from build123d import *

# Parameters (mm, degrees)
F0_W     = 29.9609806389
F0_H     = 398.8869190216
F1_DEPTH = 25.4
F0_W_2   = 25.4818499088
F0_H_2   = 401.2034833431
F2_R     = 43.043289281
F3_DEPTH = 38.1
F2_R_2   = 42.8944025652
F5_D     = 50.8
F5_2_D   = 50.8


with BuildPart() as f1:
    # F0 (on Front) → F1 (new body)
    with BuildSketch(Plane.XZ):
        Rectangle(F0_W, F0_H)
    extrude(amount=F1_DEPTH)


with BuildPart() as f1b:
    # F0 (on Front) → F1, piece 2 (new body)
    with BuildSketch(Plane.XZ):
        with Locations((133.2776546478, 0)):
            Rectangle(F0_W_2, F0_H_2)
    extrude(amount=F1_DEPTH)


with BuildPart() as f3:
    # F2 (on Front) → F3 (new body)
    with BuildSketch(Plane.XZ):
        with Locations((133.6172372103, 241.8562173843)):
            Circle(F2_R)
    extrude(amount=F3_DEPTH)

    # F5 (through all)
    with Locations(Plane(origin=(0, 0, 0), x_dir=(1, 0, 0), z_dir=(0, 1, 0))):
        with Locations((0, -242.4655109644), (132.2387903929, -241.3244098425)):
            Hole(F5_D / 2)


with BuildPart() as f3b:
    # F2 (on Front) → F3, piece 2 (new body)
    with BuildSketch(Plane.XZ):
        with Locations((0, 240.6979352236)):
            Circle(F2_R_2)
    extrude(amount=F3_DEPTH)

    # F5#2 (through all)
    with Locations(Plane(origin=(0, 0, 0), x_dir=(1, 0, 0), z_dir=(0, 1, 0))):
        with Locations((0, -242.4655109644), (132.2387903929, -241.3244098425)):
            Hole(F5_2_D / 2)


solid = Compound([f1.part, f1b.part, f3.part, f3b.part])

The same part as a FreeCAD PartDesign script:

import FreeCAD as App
import Part
import Sketcher
from FreeCAD import Vector
Q = App.Units.Quantity

doc = App.newDocument("Part")
body = doc.addObject("PartDesign::Body", "Body")

# Sketch on XZ plane
sketch1 = body.newObject("Sketcher::SketchObject", "Sketch")
sketch1.AttachmentSupport = (doc.getObject("XZ_Plane"), [""])
sketch1.MapMode = "FlatFace"
sketch1.addGeometry(Part.LineSegment(Vector(-15, 199, 0), Vector(-15, -199, 0)), False)
sketch1.addGeometry(Part.LineSegment(Vector(-15, -199, 0), Vector(15, -199, 0)), False)
sketch1.addGeometry(Part.LineSegment(Vector(15, -199, 0), Vector(15, 199, 0)), False)
sketch1.addGeometry(Part.LineSegment(Vector(15, 199, 0), Vector(-15, 199, 0)), False)
sketch1.addConstraint(Sketcher.Constraint("Coincident", 0, 2, 1, 1))
sketch1.addConstraint(Sketcher.Constraint("Coincident", 1, 2, 2, 1))
sketch1.addConstraint(Sketcher.Constraint("Coincident", 2, 2, 3, 1))
sketch1.addConstraint(Sketcher.Constraint("Coincident", 3, 2, 0, 1))
sketch1.addConstraint(Sketcher.Constraint("Vertical", 0))
sketch1.addConstraint(Sketcher.Constraint("Horizontal", 1))
sketch1.addConstraint(Sketcher.Constraint("Vertical", 2))
sketch1.addConstraint(Sketcher.Constraint("Horizontal", 3))
sketch1.addConstraint(Sketcher.Constraint("Symmetric", 0, 2, 2, 2, -1, 1))
sketch1.addConstraint(Sketcher.Constraint("DistanceX", 1, 1, 1, 2, Q("29.960981 mm")))
sketch1.addConstraint(Sketcher.Constraint("DistanceY", 0, 2, 0, 1, Q("398.886919 mm")))
pad1 = body.newObject("PartDesign::Pad", "Pad")
pad1.Profile = sketch1
pad1.Length = Q("1 in")
body2 = doc.addObject("PartDesign::Body", "Body001")

# Sketch on XZ plane
sketch2 = body2.newObject("Sketcher::SketchObject", "Sketch001")
sketch2.AttachmentSupport = (doc.getObject("XZ_Plane001"), [""])
sketch2.MapMode = "FlatFace"
sketch2.addGeometry(Part.LineSegment(Vector(121, 201, 0), Vector(121, -201, 0)), False)
sketch2.addGeometry(Part.LineSegment(Vector(121, -201, 0), Vector(146, -201, 0)), False)
sketch2.addGeometry(Part.LineSegment(Vector(146, -201, 0), Vector(146, 201, 0)), False)
sketch2.addGeometry(Part.LineSegment(Vector(146, 201, 0), Vector(121, 201, 0)), False)
sketch2.addConstraint(Sketcher.Constraint("Coincident", 0, 2, 1, 1))
sketch2.addConstraint(Sketcher.Constraint("Coincident", 1, 2, 2, 1))
sketch2.addConstraint(Sketcher.Constraint("Coincident", 2, 2, 3, 1))
sketch2.addConstraint(Sketcher.Constraint("Coincident", 3, 2, 0, 1))
sketch2.addConstraint(Sketcher.Constraint("Vertical", 0))
sketch2.addConstraint(Sketcher.Constraint("Horizontal", 1))
sketch2.addConstraint(Sketcher.Constraint("Vertical", 2))
sketch2.addConstraint(Sketcher.Constraint("Horizontal", 3))
sketch2.addConstraint(Sketcher.Constraint("DistanceX", 1, 1, 1, 2, Q("25.48185 mm")))
sketch2.addConstraint(Sketcher.Constraint("DistanceY", 0, 2, 0, 1, Q("401.203483 mm")))
sketch2.addConstraint(Sketcher.Constraint("DistanceX", -1, 1, 0, 2, Q("120.53673 mm")))
sketch2.addConstraint(Sketcher.Constraint("DistanceY", 0, 2, -1, 1, Q("200.601742 mm")))
pad2 = body2.newObject("PartDesign::Pad", "Pad001")
pad2.Profile = sketch2
pad2.Length = Q("1 in")
body3 = doc.addObject("PartDesign::Body", "Body002")

# Sketch on XZ plane
sketch3 = body3.newObject("Sketcher::SketchObject", "Sketch002")
sketch3.AttachmentSupport = (doc.getObject("XZ_Plane002"), [""])
sketch3.MapMode = "FlatFace"
sketch3.addGeometry(Part.Circle(Vector(134, 242, 0), Vector(0, 0, 1), 43), False)
sketch3.addConstraint(Sketcher.Constraint("Diameter", 0, Q("86.086579 mm")))
sketch3.addConstraint(Sketcher.Constraint("DistanceX", -1, 1, 0, 3, Q("133.617237 mm")))
sketch3.addConstraint(Sketcher.Constraint("DistanceY", -1, 1, 0, 3, Q("241.856217 mm")))
pad3 = body3.newObject("PartDesign::Pad", "Pad002")
pad3.Profile = sketch3
pad3.Length = Q("1.5 in")

# Sketch on XZ plane
sketch4 = body3.newObject("Sketcher::SketchObject", "Sketch003")
sketch4.AttachmentSupport = (doc.getObject("XZ_Plane002"), [""])
sketch4.MapMode = "FlatFace"
sketch4.addGeometry(Part.Circle(Vector(0, 242, 0), Vector(0, 0, 1), 25), False)
sketch4.addGeometry(Part.Circle(Vector(132, 241, 0), Vector(0, 0, 1), 25), False)
sketch4.addConstraint(Sketcher.Constraint("Equal", 0, 1))
sketch4.addConstraint(Sketcher.Constraint("PointOnObject", 0, 3, -2))
sketch4.addConstraint(Sketcher.Constraint("Diameter", 0, Q("2 in")))
sketch4.addConstraint(Sketcher.Constraint("DistanceY", 1, 3, 0, 3, Q("1.141101 mm")))
sketch4.addConstraint(Sketcher.Constraint("DistanceY", -1, 1, 0, 3, Q("242.465511 mm")))
sketch4.addConstraint(Sketcher.Constraint("DistanceX", -1, 1, 1, 3, Q("132.23879 mm")))
doc.recompute()
hole = body3.newObject("PartDesign::Hole", "Hole")
hole.Profile = sketch4
hole.ThreadType = "None"
hole.Diameter = Q("2 in")
hole.DepthType = "ThroughAll"
hole.Reversed = True
body4 = doc.addObject("PartDesign::Body", "Body003")

# Sketch on XZ plane
sketch5 = body4.newObject("Sketcher::SketchObject", "Sketch004")
sketch5.AttachmentSupport = (doc.getObject("XZ_Plane003"), [""])
sketch5.MapMode = "FlatFace"
sketch5.addGeometry(Part.Circle(Vector(0, 241, 0), Vector(0, 0, 1), 43), False)
sketch5.addConstraint(Sketcher.Constraint("PointOnObject", 0, 3, -2))
sketch5.addConstraint(Sketcher.Constraint("Diameter", 0, Q("85.788805 mm")))
sketch5.addConstraint(Sketcher.Constraint("DistanceY", -1, 1, 0, 3, Q("240.697935 mm")))
pad4 = body4.newObject("PartDesign::Pad", "Pad003")
pad4.Profile = sketch5
pad4.Length = Q("1.5 in")

# Sketch on XZ plane
sketch6 = body4.newObject("Sketcher::SketchObject", "Sketch005")
sketch6.AttachmentSupport = (doc.getObject("XZ_Plane003"), [""])
sketch6.MapMode = "FlatFace"
sketch6.addGeometry(Part.Circle(Vector(0, 242, 0), Vector(0, 0, 1), 25), False)
sketch6.addGeometry(Part.Circle(Vector(132, 241, 0), Vector(0, 0, 1), 25), False)
sketch6.addConstraint(Sketcher.Constraint("Equal", 0, 1))
sketch6.addConstraint(Sketcher.Constraint("PointOnObject", 0, 3, -2))
sketch6.addConstraint(Sketcher.Constraint("Diameter", 0, Q("2 in")))
sketch6.addConstraint(Sketcher.Constraint("DistanceY", 1, 3, 0, 3, Q("1.141101 mm")))
sketch6.addConstraint(Sketcher.Constraint("DistanceY", -1, 1, 0, 3, Q("242.465511 mm")))
sketch6.addConstraint(Sketcher.Constraint("DistanceX", -1, 1, 1, 3, Q("132.23879 mm")))
doc.recompute()
hole2 = body4.newObject("PartDesign::Hole", "Hole001")
hole2.Profile = sketch6
hole2.ThreadType = "None"
hole2.Diameter = Q("2 in")
hole2.DepthType = "ThroughAll"
hole2.Reversed = True

doc.recompute()
